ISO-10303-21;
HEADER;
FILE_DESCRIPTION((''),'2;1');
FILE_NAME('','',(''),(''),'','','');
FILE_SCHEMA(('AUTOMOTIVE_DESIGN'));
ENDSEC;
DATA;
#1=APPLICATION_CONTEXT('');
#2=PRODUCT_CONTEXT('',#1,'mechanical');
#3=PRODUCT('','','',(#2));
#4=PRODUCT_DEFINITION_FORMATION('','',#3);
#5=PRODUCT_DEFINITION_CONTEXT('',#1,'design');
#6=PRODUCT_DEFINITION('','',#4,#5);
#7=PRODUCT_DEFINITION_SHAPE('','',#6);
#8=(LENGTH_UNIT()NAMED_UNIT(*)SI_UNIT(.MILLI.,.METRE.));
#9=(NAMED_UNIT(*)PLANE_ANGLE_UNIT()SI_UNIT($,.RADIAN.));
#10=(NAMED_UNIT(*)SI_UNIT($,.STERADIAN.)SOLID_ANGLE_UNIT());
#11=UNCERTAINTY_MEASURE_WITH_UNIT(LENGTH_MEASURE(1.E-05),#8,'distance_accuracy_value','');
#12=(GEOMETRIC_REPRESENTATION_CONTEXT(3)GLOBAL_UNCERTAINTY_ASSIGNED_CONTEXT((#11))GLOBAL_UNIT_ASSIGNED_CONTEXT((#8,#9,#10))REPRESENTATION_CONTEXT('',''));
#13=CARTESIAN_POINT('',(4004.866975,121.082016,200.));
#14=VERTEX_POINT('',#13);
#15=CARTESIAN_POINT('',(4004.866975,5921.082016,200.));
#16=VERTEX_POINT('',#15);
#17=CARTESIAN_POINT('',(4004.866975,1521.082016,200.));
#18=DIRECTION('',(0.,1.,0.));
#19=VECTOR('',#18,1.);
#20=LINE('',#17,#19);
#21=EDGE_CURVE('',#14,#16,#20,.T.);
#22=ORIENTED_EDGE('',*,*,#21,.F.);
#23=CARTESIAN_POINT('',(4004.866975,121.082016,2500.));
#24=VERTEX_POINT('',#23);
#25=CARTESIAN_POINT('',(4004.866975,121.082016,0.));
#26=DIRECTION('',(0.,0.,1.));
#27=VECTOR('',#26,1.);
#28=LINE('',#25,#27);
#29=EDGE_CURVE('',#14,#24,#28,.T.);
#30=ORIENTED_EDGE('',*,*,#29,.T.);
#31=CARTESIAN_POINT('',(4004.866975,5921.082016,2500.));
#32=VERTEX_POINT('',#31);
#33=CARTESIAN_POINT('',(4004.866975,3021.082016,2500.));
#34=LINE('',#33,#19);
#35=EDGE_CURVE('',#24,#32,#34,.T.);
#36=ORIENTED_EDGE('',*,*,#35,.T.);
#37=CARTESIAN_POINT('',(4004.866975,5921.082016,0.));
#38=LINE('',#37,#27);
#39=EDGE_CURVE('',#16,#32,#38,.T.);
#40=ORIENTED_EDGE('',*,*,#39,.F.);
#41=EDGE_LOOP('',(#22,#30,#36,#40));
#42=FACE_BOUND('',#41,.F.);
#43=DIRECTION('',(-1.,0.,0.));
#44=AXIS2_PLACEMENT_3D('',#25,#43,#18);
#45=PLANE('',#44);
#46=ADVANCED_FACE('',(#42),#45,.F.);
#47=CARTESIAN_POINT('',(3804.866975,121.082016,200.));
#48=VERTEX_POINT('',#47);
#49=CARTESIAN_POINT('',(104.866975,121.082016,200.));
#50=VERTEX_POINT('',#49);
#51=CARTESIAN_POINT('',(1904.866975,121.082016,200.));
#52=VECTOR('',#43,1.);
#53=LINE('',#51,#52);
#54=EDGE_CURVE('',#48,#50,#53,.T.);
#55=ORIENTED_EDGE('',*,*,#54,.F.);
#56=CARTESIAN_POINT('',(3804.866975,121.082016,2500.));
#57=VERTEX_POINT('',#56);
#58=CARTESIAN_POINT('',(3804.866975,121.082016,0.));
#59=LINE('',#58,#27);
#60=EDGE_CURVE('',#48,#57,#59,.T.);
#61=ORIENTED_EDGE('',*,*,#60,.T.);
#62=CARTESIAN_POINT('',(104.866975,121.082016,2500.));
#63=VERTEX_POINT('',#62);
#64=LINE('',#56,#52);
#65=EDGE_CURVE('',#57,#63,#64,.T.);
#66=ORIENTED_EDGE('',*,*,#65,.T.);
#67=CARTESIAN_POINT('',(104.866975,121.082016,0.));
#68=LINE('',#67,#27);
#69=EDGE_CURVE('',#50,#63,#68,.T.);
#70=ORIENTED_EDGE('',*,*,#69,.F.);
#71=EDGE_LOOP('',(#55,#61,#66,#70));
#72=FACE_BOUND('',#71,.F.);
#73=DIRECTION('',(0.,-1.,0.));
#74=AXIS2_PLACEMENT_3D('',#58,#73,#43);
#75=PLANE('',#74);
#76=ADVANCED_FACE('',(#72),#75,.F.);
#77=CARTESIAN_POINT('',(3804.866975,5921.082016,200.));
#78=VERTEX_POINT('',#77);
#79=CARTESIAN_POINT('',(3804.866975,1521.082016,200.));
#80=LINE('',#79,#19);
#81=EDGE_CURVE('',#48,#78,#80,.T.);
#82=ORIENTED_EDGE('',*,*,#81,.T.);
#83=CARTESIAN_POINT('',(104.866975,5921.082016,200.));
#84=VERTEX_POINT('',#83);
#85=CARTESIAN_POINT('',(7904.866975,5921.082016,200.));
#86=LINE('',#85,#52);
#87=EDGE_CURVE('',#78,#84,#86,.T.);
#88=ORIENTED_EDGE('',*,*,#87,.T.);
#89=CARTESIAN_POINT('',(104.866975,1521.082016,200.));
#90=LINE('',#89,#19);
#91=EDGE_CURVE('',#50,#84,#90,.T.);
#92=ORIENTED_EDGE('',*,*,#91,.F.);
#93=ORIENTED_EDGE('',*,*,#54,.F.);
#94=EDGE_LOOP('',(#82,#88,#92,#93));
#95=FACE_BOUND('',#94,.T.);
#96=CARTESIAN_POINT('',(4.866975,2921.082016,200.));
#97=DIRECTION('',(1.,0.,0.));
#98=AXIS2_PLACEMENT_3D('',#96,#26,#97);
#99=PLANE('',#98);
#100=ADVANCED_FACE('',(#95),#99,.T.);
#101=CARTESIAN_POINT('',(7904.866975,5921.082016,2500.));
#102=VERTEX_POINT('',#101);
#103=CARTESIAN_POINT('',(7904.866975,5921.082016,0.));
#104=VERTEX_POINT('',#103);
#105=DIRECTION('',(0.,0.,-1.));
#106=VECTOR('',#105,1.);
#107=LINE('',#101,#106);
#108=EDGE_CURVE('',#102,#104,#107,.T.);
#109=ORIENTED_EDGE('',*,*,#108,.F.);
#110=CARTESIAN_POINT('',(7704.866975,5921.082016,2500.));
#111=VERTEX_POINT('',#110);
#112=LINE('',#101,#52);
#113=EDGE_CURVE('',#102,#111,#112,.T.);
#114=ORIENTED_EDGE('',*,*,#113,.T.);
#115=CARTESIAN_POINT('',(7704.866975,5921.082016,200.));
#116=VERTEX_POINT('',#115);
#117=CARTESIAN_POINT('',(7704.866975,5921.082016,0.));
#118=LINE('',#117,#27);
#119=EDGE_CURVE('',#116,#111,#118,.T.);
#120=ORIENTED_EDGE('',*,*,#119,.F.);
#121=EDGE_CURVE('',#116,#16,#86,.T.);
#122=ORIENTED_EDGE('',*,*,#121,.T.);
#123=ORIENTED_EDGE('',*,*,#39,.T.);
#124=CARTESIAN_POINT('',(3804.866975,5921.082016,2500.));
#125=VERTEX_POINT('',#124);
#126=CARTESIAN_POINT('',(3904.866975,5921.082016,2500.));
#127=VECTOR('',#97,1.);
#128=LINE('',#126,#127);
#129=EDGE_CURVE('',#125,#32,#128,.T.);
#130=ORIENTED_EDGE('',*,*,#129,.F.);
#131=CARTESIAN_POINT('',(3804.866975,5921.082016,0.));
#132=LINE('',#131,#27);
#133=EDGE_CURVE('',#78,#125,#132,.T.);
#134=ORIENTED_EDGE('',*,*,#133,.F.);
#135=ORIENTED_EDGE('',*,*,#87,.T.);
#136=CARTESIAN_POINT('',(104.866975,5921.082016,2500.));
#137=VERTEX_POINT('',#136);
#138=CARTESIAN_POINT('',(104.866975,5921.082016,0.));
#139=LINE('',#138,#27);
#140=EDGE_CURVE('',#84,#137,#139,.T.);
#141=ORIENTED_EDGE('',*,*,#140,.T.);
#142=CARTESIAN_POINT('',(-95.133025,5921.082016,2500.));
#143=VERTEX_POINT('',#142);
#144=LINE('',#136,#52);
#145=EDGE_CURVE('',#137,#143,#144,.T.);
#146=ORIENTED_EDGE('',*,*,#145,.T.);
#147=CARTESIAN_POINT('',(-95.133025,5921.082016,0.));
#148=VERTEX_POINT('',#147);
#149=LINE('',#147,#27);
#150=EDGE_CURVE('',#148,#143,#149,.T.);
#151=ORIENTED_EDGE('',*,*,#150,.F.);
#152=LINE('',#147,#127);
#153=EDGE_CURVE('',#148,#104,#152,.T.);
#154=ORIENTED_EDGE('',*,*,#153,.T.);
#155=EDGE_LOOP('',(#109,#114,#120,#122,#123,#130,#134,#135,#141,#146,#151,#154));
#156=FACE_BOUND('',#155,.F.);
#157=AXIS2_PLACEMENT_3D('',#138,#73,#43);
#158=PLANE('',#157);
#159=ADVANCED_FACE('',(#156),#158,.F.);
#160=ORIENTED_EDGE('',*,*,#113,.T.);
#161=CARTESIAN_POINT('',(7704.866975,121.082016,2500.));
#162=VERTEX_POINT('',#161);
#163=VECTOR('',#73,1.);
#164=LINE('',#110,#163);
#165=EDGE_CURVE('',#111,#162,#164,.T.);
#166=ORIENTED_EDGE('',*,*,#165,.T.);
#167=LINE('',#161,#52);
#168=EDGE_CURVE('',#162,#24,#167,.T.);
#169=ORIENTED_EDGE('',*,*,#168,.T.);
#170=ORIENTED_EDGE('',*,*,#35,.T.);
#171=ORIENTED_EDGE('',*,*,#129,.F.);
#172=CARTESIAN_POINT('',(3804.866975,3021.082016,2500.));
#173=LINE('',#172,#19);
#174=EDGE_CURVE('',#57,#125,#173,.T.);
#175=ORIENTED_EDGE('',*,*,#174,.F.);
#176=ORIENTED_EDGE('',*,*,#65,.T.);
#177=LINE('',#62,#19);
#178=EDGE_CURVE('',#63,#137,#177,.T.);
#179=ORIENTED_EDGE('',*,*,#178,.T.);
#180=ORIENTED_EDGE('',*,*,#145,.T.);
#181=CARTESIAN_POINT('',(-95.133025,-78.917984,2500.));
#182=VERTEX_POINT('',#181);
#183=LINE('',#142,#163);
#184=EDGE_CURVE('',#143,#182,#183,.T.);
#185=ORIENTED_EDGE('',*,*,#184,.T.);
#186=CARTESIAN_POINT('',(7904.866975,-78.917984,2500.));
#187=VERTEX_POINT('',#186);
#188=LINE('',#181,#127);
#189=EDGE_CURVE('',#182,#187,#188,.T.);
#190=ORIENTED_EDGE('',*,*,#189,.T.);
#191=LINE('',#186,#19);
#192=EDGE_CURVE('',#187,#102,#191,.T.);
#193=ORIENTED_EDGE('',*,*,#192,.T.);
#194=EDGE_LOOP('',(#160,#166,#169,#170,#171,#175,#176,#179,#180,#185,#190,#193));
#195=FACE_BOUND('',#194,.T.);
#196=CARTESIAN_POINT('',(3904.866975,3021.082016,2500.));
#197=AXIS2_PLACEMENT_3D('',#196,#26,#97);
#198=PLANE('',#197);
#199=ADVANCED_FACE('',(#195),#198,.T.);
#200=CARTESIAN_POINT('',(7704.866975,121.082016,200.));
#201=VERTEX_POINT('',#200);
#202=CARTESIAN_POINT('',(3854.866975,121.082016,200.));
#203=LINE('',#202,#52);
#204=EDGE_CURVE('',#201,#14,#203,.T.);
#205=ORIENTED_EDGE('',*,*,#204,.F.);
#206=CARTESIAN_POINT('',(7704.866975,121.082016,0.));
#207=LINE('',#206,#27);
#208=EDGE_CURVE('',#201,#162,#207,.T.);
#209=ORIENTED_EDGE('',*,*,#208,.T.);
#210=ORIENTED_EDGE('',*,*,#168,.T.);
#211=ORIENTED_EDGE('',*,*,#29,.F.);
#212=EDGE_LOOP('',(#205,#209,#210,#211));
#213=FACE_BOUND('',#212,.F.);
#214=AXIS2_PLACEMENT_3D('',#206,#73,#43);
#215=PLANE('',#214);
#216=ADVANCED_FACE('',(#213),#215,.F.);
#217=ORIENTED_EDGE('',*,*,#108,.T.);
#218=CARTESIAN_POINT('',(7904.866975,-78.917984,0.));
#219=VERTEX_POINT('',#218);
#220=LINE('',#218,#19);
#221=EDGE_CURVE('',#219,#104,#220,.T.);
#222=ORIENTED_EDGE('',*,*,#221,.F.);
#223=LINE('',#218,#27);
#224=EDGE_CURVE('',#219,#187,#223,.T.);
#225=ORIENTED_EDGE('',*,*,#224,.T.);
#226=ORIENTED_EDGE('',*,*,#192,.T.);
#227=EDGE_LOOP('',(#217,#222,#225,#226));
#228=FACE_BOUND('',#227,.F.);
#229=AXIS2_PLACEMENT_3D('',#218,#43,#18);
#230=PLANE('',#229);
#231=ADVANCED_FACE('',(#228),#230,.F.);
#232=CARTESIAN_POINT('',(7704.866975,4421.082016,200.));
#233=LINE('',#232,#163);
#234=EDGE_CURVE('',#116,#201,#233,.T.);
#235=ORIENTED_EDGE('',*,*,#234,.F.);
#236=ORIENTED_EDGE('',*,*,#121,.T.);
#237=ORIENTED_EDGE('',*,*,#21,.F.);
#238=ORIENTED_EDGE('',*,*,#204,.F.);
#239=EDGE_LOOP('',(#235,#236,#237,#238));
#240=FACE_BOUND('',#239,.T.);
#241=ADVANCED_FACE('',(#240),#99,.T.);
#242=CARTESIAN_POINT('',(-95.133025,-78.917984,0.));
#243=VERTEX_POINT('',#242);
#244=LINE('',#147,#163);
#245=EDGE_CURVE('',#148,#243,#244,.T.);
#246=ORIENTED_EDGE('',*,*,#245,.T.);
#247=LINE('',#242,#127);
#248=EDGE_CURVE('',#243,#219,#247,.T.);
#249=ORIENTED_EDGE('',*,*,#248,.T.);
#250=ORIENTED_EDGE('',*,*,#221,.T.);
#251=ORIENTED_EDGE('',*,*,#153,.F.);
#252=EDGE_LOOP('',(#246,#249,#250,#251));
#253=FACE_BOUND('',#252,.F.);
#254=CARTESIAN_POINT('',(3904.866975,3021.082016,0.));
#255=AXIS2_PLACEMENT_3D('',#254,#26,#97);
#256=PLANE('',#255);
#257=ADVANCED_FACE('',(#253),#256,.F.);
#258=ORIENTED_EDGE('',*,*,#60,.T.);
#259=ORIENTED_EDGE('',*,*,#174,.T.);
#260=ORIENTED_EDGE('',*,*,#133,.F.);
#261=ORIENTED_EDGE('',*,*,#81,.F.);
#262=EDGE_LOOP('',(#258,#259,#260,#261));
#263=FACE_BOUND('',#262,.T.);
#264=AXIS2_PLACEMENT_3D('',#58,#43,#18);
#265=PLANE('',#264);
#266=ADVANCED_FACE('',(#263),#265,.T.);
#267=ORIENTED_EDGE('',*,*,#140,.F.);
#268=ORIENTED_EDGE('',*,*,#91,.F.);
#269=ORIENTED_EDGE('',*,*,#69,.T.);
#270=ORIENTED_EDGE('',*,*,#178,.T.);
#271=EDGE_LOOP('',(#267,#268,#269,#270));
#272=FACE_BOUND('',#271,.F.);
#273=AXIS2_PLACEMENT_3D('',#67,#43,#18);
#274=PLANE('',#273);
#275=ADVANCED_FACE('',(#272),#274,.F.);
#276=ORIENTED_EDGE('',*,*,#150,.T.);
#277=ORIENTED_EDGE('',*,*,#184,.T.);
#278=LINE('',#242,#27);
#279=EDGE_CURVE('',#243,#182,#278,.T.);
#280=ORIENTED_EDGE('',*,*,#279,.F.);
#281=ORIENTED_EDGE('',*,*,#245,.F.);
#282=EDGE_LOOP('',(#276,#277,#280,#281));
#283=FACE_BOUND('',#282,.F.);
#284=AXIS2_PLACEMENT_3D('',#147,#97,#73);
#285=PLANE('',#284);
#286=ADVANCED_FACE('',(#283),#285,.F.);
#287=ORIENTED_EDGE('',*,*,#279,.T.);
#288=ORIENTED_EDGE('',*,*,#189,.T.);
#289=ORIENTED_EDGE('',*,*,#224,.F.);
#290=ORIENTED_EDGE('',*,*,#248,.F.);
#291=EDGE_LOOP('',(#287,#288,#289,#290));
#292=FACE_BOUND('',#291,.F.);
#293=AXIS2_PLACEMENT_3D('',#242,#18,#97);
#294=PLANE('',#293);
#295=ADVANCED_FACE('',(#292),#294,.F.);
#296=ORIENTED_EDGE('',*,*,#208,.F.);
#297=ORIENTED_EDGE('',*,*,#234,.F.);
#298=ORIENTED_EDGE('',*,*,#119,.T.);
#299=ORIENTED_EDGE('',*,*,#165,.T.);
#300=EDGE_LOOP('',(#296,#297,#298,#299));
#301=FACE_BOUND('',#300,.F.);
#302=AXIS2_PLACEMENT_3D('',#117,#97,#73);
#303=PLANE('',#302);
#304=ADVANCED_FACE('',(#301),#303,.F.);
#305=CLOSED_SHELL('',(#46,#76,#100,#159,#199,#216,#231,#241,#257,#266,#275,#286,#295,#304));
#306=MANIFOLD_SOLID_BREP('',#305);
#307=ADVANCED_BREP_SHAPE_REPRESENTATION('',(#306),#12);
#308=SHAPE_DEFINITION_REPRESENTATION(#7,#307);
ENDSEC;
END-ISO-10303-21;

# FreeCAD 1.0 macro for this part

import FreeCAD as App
import Part
import Sketcher

V = App.Vector
Q = App.Units.Quantity


def add_polygon(sketch, points):
    """Adds a closed chain of lines whose ends are joined by coincident constraints."""
    first, n = sketch.GeometryCount, len(points)
    for a, b in zip(points, points[1:] + points[:1]):
        sketch.addGeometry(Part.LineSegment(App.Vector(*a, 0), App.Vector(*b, 0)), False)
    for i in range(n):
        sketch.addConstraint(Sketcher.Constraint("Coincident", first + i, 2, first + (i + 1) % n, 1))

doc = App.newDocument("Part")
body = doc.addObject("PartDesign::Body", "Body")

sketch1 = doc.addObject("Sketcher::SketchObject", "Sketch")
body.addObject(sketch1)
sketch1.AttachmentSupport = (doc.XY_Plane, [""])
sketch1.MapMode = "FlatFace"
add_polygon(sketch1, [(3805, 5921), (3805, 121), (105, 121), (105, 5921), (-95, 5921), (-95, -79), (7905, -79), (7905, 5921), (7705, 5921), (7705, 121), (4005, 121), (4005, 5921)])
sketch1.addConstraint([
    Sketcher.Constraint("Vertical", 0),
    Sketcher.Constraint("Horizontal", 1),
    Sketcher.Constraint("Vertical", 2),
    Sketcher.Constraint("Horizontal", 3),
    Sketcher.Constraint("Vertical", 4),
    Sketcher.Constraint("Horizontal", 5),
    Sketcher.Constraint("Vertical", 6),
    Sketcher.Constraint("Horizontal", 7),
    Sketcher.Constraint("Vertical", 8),
    Sketcher.Constraint("Horizontal", 9),
    Sketcher.Constraint("Vertical", 10),
    Sketcher.Constraint("Horizontal", 11),
    Sketcher.Constraint("Horizontal", 3, 2, 6, 2),
    Sketcher.Constraint("Horizontal", 1, 2, 8, 2),
    Sketcher.Constraint("Horizontal", 7, 2, 10, 2),
    Sketcher.Constraint("Equal", 3, 7),
    Sketcher.Constraint("Equal", 1, 9),
    Sketcher.Constraint("Equal", 7, 11),
    Sketcher.Constraint("DistanceX", 1, 2, 1, 1, Q("3700 mm")),
    Sketcher.Constraint("DistanceX", 3, 2, 3, 1, Q("200 mm")),
    Sketcher.Constraint("DistanceY", 0, 2, 0, 1, Q("5800 mm")),
    Sketcher.Constraint("DistanceY", 4, 2, 4, 1, Q("6000 mm")),
    Sketcher.Constraint("DistanceX", -1, 1, 0, 2, Q("3804.866975 mm")),
    Sketcher.Constraint("DistanceY", -1, 1, 0, 2, Q("121.082016 mm")),
])
pad1 = doc.addObject("PartDesign::Pad", "Pad")
body.addObject(pad1)
pad1.Profile = sketch1
pad1.Length = 2500

sketch2 = doc.addObject("Sketcher::SketchObject", "Sketch001")
body.addObject(sketch2)
sketch2.AttachmentSupport = (doc.XY_Plane, [""])
sketch2.MapMode = "FlatFace"
add_polygon(sketch2, [(-95, 5921), (-95, -79), (7905, -79), (7905, 5921)])
sketch2.addConstraint([
    Sketcher.Constraint("Vertical", 0),
    Sketcher.Constraint("Horizontal", 1),
    Sketcher.Constraint("Vertical", 2),
    Sketcher.Constraint("Horizontal", 3),
    Sketcher.Constraint("DistanceX", 1, 1, 1, 2, Q("8000 mm")),
    Sketcher.Constraint("DistanceY", 0, 2, 0, 1, Q("6000 mm")),
    Sketcher.Constraint("DistanceX", 0, 2, -1, 1, Q("95.133025 mm")),
    Sketcher.Constraint("DistanceY", 0, 2, -1, 1, Q("78.917984 mm")),
])
pad2 = doc.addObject("PartDesign::Pad", "Pad001")
body.addObject(pad2)
pad2.Profile = sketch2
pad2.Length = 200

doc.recompute()
